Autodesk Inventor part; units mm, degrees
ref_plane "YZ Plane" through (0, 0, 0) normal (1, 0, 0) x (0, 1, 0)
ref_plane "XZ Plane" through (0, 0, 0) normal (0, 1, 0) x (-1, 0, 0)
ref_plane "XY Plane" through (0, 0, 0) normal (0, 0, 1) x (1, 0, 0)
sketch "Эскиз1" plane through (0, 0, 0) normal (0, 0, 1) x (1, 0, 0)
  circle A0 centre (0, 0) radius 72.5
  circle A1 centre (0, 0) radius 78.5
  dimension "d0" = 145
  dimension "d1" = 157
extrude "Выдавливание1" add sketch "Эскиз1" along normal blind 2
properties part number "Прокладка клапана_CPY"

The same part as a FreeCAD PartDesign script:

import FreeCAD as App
import Part
import Sketcher
from FreeCAD import Vector
Q = App.Units.Quantity

doc = App.newDocument("Part")
body = doc.addObject("PartDesign::Body", "Body")

sketch1 = body.newObject("Sketcher::SketchObject", "Sketch")
sketch1.AttachmentSupport = (doc.getObject("XY_Plane"), [""])
sketch1.MapMode = "FlatFace"
sketch1.addGeometry(Part.Circle(Vector(0, 0, 0), Vector(0, 0, 1), 78), False)
sketch1.addGeometry(Part.Circle(Vector(0, 0, 0), Vector(0, 0, 1), 72), False)
sketch1.addConstraint(Sketcher.Constraint("Coincident", 0, 3, -1, 1))
sketch1.addConstraint(Sketcher.Constraint("Coincident", 1, 3, -1, 1))
sketch1.addConstraint(Sketcher.Constraint("Diameter", 0, Q("157 mm")))
sketch1.addConstraint(Sketcher.Constraint("Diameter", 1, Q("145 mm")))
pad1 = body.newObject("PartDesign::Pad", "Pad")
pad1.Profile = sketch1
pad1.Length = 2

doc.recompute()
